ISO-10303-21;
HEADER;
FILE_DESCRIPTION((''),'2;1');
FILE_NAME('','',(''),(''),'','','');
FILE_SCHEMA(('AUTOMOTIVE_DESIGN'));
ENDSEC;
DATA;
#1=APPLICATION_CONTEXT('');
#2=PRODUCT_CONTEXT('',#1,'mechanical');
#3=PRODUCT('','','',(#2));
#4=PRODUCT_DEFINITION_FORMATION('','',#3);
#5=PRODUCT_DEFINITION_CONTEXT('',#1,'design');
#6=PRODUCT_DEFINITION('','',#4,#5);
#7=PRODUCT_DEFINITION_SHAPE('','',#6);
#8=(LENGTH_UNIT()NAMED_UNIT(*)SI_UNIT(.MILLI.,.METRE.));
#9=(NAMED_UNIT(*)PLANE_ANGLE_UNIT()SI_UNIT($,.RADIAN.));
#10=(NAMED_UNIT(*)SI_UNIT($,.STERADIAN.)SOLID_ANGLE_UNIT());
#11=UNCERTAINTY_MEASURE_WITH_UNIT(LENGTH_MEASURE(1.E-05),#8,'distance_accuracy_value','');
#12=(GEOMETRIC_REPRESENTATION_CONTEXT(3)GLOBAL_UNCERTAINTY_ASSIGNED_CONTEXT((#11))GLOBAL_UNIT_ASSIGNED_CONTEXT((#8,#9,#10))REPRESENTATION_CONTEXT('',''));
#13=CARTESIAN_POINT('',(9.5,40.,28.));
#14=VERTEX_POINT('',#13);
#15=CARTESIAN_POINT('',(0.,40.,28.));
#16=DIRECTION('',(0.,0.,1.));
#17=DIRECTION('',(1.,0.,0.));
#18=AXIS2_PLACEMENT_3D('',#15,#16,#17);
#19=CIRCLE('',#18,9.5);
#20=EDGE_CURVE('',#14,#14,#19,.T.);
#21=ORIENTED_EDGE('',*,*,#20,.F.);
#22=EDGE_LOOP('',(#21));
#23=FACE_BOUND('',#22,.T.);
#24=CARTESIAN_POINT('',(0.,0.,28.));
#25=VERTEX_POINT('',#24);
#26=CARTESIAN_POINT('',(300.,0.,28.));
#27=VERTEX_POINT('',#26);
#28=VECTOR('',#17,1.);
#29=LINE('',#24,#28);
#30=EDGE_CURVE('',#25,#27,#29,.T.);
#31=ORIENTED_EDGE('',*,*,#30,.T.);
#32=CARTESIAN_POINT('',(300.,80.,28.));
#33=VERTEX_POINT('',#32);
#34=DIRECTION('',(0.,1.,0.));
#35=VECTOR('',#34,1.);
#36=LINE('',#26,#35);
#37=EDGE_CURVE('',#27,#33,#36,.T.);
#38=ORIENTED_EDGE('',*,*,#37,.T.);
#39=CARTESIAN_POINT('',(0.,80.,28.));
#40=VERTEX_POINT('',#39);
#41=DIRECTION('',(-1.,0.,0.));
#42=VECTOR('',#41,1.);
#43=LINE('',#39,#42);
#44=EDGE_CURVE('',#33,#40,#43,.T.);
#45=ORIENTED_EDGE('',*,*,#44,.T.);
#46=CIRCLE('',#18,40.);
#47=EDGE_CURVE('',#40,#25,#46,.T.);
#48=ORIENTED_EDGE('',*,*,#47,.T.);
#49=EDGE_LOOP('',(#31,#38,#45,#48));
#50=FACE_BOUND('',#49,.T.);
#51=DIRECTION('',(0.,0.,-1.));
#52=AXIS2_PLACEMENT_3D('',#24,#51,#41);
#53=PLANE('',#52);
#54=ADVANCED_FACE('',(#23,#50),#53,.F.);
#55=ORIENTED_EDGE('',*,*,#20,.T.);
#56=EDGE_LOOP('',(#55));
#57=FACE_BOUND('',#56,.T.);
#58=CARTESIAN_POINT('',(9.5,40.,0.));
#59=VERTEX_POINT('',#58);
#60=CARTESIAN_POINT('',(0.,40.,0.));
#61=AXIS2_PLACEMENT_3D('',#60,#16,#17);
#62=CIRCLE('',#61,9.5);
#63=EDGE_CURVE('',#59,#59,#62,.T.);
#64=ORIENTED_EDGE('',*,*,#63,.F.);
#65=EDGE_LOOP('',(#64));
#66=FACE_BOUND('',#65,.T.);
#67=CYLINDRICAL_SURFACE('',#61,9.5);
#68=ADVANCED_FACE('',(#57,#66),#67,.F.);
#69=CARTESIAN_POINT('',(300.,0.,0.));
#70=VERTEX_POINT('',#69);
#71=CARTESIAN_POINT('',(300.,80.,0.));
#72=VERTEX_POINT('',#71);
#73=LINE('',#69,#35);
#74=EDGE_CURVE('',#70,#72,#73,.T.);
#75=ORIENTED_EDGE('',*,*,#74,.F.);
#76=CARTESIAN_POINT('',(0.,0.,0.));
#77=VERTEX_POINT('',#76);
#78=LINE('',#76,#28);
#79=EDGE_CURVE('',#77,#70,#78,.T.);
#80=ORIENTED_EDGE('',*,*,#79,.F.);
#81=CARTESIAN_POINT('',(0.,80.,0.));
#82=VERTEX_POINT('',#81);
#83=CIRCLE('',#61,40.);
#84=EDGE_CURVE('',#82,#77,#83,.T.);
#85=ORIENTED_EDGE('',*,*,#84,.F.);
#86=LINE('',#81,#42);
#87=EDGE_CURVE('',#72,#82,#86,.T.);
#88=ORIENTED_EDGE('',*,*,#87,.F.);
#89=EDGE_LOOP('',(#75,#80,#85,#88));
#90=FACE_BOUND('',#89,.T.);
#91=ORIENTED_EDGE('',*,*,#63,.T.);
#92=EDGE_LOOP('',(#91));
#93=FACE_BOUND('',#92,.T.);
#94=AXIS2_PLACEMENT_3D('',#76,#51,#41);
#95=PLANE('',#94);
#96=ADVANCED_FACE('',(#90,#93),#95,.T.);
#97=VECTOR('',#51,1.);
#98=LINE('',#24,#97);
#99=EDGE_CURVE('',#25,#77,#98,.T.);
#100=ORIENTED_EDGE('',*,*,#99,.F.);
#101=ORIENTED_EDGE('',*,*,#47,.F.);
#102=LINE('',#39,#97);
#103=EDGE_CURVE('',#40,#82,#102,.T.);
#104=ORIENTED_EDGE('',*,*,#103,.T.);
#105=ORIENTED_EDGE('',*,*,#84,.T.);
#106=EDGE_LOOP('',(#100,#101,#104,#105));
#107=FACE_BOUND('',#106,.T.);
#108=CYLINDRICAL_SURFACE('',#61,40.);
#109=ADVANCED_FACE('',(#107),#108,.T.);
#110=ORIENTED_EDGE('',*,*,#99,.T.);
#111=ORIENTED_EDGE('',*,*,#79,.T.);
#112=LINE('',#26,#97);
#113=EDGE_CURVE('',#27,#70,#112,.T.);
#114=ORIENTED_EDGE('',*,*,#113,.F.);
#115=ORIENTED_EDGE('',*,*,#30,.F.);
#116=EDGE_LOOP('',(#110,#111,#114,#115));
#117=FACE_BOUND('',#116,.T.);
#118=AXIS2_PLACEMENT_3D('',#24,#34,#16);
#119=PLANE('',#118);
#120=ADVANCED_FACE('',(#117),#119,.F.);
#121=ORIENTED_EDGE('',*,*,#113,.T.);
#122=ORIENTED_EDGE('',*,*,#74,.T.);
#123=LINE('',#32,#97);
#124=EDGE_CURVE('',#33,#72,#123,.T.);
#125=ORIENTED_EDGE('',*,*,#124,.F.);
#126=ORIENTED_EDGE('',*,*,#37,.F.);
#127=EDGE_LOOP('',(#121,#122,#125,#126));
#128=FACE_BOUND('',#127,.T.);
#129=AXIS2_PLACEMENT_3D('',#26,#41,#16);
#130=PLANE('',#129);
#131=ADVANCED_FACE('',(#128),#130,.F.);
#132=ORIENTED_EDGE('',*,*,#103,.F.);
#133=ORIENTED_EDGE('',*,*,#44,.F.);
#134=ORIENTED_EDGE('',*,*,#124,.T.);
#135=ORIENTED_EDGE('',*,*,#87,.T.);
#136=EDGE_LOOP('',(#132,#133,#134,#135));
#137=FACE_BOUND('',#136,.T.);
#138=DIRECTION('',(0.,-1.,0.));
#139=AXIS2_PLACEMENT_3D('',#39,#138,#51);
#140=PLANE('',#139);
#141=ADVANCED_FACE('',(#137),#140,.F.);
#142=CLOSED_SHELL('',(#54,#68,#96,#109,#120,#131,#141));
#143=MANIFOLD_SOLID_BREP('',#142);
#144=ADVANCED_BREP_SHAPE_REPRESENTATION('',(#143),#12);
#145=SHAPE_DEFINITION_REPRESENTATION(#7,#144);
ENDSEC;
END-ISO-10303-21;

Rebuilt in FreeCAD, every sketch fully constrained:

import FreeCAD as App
import Part
import Sketcher

V = App.Vector
Q = App.Units.Quantity


def add_polygon(sketch, points):
    """Adds a closed chain of lines whose ends are joined by coincident constraints."""
    first, n = sketch.GeometryCount, len(points)
    for a, b in zip(points, points[1:] + points[:1]):
        sketch.addGeometry(Part.LineSegment(App.Vector(*a, 0), App.Vector(*b, 0)), False)
    for i in range(n):
        sketch.addConstraint(Sketcher.Constraint("Coincident", first + i, 2, first + (i + 1) % n, 1))

doc = App.newDocument("Part")
body = doc.addObject("PartDesign::Body", "Body")

# Sketch on XY plane
sketch1 = body.newObject("Sketcher::SketchObject", "Sketch")
sketch1.AttachmentSupport = (doc.getObject("XY_Plane"), [""])
sketch1.MapMode = "FlatFace"
add_polygon(sketch1, [(0, 80), (0, 0), (300, 0), (300, 80)])  # lines 0-3
sketch1.addConstraint([
    Sketcher.Constraint("Vertical", 0),
    Sketcher.Constraint("Horizontal", 1),
    Sketcher.Constraint("Vertical", 2),
    Sketcher.Constraint("Horizontal", 3),
    Sketcher.Constraint("Coincident", 0, 2, -1, 1),
    Sketcher.Constraint("DistanceX", 1, 1, 1, 2, Q("300 mm")),
    Sketcher.Constraint("DistanceY", 0, 2, 0, 1, Q("80 mm")),
])
pad1 = body.newObject("PartDesign::Pad", "Pad")
pad1.Profile = sketch1
pad1.Length = 28

# Sketch on XY plane
sketch2 = body.newObject("Sketcher::SketchObject", "Sketch001")
sketch2.AttachmentSupport = (doc.getObject("XY_Plane"), [""])
sketch2.MapMode = "FlatFace"
sketch2.AttachmentOffset = App.Placement(V(0, 0, 28), App.Rotation())
sketch2.addGeometry(Part.Circle(V(0, 40, 0), V(0, 0, 1), 40), False)
sketch2.addConstraint([
    Sketcher.Constraint("PointOnObject", 0, 3, -2),
    Sketcher.Constraint("Diameter", 0, Q("80 mm")),
    Sketcher.Constraint("DistanceY", -1, 1, 0, 3, Q("40 mm")),
])
pad2 = body.newObject("PartDesign::Pad", "Pad001")
pad2.Profile = sketch2
pad2.Length = 28
pad2.Reversed = True

# Sketch on XY plane
sketch3 = body.newObject("Sketcher::SketchObject", "Sketch002")
sketch3.AttachmentSupport = (doc.getObject("XY_Plane"), [""])
sketch3.MapMode = "FlatFace"
sketch3.AttachmentOffset = App.Placement(V(0, 0, 28), App.Rotation())
sketch3.addGeometry(Part.Circle(V(0, 40, 0), V(0, 0, 1), 10), False)
sketch3.addConstraint([
    Sketcher.Constraint("PointOnObject", 0, 3, -2),
    Sketcher.Constraint("Diameter", 0, Q("19 mm")),
    Sketcher.Constraint("DistanceY", -1, 1, 0, 3, Q("40 mm")),
])
pocket1 = body.newObject("PartDesign::Pocket", "Pocket")
pocket1.Profile = sketch3
pocket1.Type = "ThroughAll"
pocket1.Midplane = True

doc.recompute()
